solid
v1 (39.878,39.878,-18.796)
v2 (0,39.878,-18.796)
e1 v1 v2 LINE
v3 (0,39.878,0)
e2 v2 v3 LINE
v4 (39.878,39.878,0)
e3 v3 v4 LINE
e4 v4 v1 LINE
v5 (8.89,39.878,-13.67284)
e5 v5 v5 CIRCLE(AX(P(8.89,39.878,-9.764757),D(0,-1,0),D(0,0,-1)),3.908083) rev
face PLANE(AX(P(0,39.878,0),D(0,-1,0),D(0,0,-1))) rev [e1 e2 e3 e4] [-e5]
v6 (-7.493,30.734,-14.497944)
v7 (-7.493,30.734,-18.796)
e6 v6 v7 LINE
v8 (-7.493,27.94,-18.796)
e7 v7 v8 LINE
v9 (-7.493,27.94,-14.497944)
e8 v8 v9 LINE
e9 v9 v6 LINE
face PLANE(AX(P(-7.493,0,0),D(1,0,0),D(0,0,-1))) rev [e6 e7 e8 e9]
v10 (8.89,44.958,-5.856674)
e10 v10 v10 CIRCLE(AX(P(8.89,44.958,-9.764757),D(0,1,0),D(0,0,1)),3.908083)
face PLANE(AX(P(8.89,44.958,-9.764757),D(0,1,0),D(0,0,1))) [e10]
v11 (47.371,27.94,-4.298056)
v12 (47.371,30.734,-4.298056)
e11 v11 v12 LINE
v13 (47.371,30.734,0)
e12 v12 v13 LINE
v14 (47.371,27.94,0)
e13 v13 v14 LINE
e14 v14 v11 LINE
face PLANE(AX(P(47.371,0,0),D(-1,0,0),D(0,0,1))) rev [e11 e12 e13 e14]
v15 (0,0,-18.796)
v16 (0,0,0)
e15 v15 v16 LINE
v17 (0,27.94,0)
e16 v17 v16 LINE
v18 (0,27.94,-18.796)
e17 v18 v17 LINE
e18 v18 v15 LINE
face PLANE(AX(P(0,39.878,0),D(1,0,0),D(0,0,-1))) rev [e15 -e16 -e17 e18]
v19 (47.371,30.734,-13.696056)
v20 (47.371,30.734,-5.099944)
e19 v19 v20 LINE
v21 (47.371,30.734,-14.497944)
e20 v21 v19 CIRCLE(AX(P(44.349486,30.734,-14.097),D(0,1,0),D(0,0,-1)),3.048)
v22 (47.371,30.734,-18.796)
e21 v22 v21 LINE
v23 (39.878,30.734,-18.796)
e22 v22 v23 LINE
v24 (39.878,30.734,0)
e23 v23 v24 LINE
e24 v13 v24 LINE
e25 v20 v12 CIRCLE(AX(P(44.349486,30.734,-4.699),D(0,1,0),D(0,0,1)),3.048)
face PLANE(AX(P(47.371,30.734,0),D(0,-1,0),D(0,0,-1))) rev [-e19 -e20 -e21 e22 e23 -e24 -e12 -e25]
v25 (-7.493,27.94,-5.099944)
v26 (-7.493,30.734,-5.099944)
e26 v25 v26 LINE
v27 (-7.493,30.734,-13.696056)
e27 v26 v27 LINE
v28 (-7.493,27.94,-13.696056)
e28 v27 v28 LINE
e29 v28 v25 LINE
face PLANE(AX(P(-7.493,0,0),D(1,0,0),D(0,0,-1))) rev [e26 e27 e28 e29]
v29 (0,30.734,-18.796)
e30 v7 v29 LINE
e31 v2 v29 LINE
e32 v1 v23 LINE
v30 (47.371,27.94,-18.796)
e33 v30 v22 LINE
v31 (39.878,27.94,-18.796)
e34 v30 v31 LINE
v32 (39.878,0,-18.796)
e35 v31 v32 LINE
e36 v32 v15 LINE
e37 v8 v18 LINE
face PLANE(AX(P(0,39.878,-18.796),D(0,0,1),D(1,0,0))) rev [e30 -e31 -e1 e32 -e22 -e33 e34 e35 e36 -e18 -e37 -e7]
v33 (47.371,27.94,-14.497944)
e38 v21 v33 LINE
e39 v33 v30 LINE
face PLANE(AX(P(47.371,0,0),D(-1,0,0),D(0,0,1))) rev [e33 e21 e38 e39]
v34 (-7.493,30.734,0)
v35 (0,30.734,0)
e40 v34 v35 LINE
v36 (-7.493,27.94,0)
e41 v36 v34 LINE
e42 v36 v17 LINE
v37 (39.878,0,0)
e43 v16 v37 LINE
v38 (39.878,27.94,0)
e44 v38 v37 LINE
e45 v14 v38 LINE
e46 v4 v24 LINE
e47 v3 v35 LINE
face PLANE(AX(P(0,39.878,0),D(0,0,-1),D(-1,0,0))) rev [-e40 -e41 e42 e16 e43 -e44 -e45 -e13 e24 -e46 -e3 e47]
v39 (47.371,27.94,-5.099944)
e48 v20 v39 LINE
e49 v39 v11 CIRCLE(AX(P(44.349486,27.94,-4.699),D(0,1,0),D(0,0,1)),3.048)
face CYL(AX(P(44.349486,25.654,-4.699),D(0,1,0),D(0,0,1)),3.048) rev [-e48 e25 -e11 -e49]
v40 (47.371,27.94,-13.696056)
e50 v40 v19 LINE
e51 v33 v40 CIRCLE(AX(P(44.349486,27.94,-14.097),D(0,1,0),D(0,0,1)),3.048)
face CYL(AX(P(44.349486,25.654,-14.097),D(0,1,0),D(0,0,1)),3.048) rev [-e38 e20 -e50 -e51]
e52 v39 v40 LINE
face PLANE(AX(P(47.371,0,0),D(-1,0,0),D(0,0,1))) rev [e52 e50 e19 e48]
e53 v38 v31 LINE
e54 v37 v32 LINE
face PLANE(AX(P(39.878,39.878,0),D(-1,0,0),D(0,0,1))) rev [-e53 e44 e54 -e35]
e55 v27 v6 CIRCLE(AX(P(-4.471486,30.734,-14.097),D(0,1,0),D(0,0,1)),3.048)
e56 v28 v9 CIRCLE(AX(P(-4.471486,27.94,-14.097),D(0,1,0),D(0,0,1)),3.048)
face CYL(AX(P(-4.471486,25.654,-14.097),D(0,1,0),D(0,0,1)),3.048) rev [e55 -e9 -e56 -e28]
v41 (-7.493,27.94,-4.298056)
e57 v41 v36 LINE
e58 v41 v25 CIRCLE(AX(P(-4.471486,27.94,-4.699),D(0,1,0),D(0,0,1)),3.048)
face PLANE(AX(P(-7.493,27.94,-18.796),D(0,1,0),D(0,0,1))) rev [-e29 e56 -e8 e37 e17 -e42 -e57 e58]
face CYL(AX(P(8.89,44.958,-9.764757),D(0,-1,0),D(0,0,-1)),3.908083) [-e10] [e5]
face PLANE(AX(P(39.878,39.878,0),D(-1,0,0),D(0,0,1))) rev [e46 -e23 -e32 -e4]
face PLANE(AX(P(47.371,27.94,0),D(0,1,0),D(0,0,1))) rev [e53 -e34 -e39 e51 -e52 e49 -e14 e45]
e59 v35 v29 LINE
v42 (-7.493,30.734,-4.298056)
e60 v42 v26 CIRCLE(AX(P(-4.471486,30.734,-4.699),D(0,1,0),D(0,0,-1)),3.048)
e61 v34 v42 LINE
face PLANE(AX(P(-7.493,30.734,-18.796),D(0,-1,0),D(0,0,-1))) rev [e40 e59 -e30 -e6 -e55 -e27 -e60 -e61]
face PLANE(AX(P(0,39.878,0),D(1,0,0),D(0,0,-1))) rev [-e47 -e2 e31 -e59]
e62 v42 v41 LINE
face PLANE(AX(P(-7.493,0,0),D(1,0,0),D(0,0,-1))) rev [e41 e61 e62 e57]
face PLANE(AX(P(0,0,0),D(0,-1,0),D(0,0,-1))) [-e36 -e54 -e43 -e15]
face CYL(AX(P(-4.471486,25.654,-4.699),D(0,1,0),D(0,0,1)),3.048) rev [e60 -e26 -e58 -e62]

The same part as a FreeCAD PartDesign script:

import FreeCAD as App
import Part
import Sketcher

V = App.Vector
Q = App.Units.Quantity


def add_polygon(sketch, points):
    """Adds a closed chain of lines whose ends are joined by coincident constraints."""
    first, n = sketch.GeometryCount, len(points)
    for a, b in zip(points, points[1:] + points[:1]):
        sketch.addGeometry(Part.LineSegment(App.Vector(*a, 0), App.Vector(*b, 0)), False)
    for i in range(n):
        sketch.addConstraint(Sketcher.Constraint("Coincident", first + i, 2, first + (i + 1) % n, 1))

doc = App.newDocument("Part")
params = doc.addObject("Spreadsheet::Sheet", "Params")
for row, (alias, value) in enumerate([
    ("sketch1_width", "1.57 in"),
    ("sketch1_height", "0.74 in"),
    ("pad1_length", "1.57 in"),
    ("sketch2_width", "0.11 in"),
    ("sketch2_height", "0.74 in"),
    ("pad2_length", "0.295 in"),
    ("sketch3_width", "0.11 in"),
    ("sketch3_height", "0.74 in"),
    ("pad3_length", "0.295 in"),
    ("pad4_length", "0.2 in"),
    ("sketch5_diameter", "0.24 in"),
    ("pocket1_length", "0.2 in"),
], start=1):
    params.set(f"A{row}", alias)
    params.set(f"B{row}", "=" + value)
    params.setAlias(f"B{row}", alias)

body = doc.addObject("PartDesign::Body", "Body")

# Sketch on XZ plane
sketch1 = doc.addObject("Sketcher::SketchObject", "Sketch")
body.addObject(sketch1)
sketch1.AttachmentSupport = (doc.XZ_Plane, [""])
sketch1.MapMode = "FlatFace"
add_polygon(sketch1, [(0, -18.796), (0, 0), (39.878, 0), (39.878, -18.796)])  # lines 0-3
sketch1.addConstraint([
    Sketcher.Constraint("Vertical", 0),
    Sketcher.Constraint("Horizontal", 1),
    Sketcher.Constraint("Vertical", 2),
    Sketcher.Constraint("Horizontal", 3),
    Sketcher.Constraint("Coincident", 0, 2, -1, 1),
    Sketcher.Constraint("DistanceX", 1, 1, 1, 2, Q("1.57 in")),
    Sketcher.Constraint("DistanceY", 0, 1, 0, 2, Q("0.74 in")),
])
sketch1.setExpression("Constraints[9]", "Params.sketch1_width")
sketch1.setExpression("Constraints[10]", "Params.sketch1_height")
pad1 = doc.addObject("PartDesign::Pad", "Pad")
body.addObject(pad1)
pad1.Profile = sketch1
pad1.setExpression("Length", "Params.pad1_length")
pad1.Reversed = True

# Sketch on YZ plane
sketch2 = doc.addObject("Sketcher::SketchObject", "Sketch001")
body.addObject(sketch2)
sketch2.AttachmentSupport = (doc.YZ_Plane, [""])
sketch2.MapMode = "FlatFace"
add_polygon(sketch2, [(30.734, -18.796), (27.94, -18.796), (27.94, 0), (30.734, 0)])  # lines 0-3
sketch2.addConstraint([
    Sketcher.Constraint("Horizontal", 0),
    Sketcher.Constraint("Vertical", 1),
    Sketcher.Constraint("Horizontal", 2),
    Sketcher.Constraint("Vertical", 3),
    Sketcher.Constraint("PointOnObject", 1, 2, -1),
    Sketcher.Constraint("DistanceX", 0, 2, 0, 1, Q("0.11 in")),
    Sketcher.Constraint("DistanceY", 1, 1, 1, 2, Q("0.74 in")),
    Sketcher.Constraint("DistanceX", -1, 1, 0, 2, Q("1.1 in")),
])
sketch2.setExpression("Constraints[9]", "Params.sketch2_width")
sketch2.setExpression("Constraints[10]", "Params.sketch2_height")
pad2 = doc.addObject("PartDesign::Pad", "Pad001")
body.addObject(pad2)
pad2.Profile = sketch2
pad2.setExpression("Length", "Params.pad2_length")
pad2.Reversed = True

# Sketch on YZ plane
sketch3 = doc.addObject("Sketcher::SketchObject", "Sketch002")
body.addObject(sketch3)
sketch3.AttachmentSupport = (doc.YZ_Plane, [""])
sketch3.MapMode = "FlatFace"
sketch3.AttachmentOffset = App.Placement(V(0, 0, 1.57 * 25.4), App.Rotation())
add_polygon(sketch3, [(30.734, 0), (27.94, 0), (27.94, -18.796), (30.734, -18.796)])  # lines 0-3
sketch3.addConstraint([
    Sketcher.Constraint("Horizontal", 0),
    Sketcher.Constraint("Vertical", 1),
    Sketcher.Constraint("Horizontal", 2),
    Sketcher.Constraint("Vertical", 3),
    Sketcher.Constraint("PointOnObject", 0, 2, -1),
    Sketcher.Constraint("DistanceX", 0, 2, 0, 1, Q("0.11 in")),
    Sketcher.Constraint("DistanceY", 1, 2, 1, 1, Q("0.74 in")),
    Sketcher.Constraint("DistanceX", -1, 1, 0, 2, Q("1.1 in")),
])
sketch3.setExpression("Constraints[9]", "Params.sketch3_width")
sketch3.setExpression("Constraints[10]", "Params.sketch3_height")
pad3 = doc.addObject("PartDesign::Pad", "Pad002")
body.addObject(pad3)
pad3.Profile = sketch3
pad3.setExpression("Length", "Params.pad3_length")

# Sketch on XZ plane
sketch4 = doc.addObject("Sketcher::SketchObject", "Sketch003")
body.addObject(sketch4)
sketch4.AttachmentSupport = (doc.XZ_Plane, [""])
sketch4.MapMode = "FlatFace"
sketch4.AttachmentOffset = App.Placement(V(0, 0, -1.57 * 25.4), App.Rotation())
sketch4.addGeometry(Part.Circle(V(8.89, -9.764757, 0), V(0, 0, 1), 3.908083), False)
sketch4.addConstraint([
    Sketcher.Constraint("DistanceX", -1, 1, 0, 3, Q("0.35 in")),
    Sketcher.Constraint("Diameter", 0, 7.816166),
    Sketcher.Constraint("DistanceY", 0, 3, -1, 1, 9.764757),
])
pad4 = doc.addObject("PartDesign::Pad", "Pad003")
body.addObject(pad4)
pad4.Profile = sketch4
pad4.setExpression("Length", "Params.pad4_length")
pad4.Reversed = True

# Sketch on XZ plane
sketch5 = doc.addObject("Sketcher::SketchObject", "Sketch004")
body.addObject(sketch5)
sketch5.AttachmentSupport = (doc.XZ_Plane, [""])
sketch5.MapMode = "FlatFace"
sketch5.AttachmentOffset = App.Placement(V(0, 0, -1.21 * 25.4), App.Rotation())
sketch5.addGeometry([
    Part.Circle(V(-4.471486, -14.097, 0), V(0, 0, 1), 3.048),
    Part.Circle(V(-4.471486, -4.699, 0), V(0, 0, 1), 3.048),
    Part.Circle(V(44.349486, -4.699, 0), V(0, 0, 1), 3.048),
    Part.Circle(V(44.349486, -14.097, 0), V(0, 0, 1), 3.048),
], False)
sketch5.addConstraint([
    Sketcher.Constraint("Equal", 0, 1),
    Sketcher.Constraint("Equal", 1, 2),
    Sketcher.Constraint("Equal", 2, 3),
    Sketcher.Constraint("Horizontal", 1, 3, 2, 3),
    Sketcher.Constraint("Horizontal", 0, 3, 3, 3),
    Sketcher.Constraint("Vertical", 0, 3, 1, 3),
    Sketcher.Constraint("Vertical", 2, 3, 3, 3),
    Sketcher.Constraint("Diameter", 0, Q("0.24 in")),
    Sketcher.Constraint("DistanceY", 0, 3, 1, 3, Q("0.37 in")),
    Sketcher.Constraint("DistanceY", 0, 3, -1, 1, Q("0.555 in")),
    Sketcher.Constraint("DistanceX", 1, 3, 2, 3, 48.820972),
    Sketcher.Constraint("DistanceX", 0, 3, -1, 1, 4.471486),
])
sketch5.setExpression("Constraints[7]", "Params.sketch5_diameter")
pocket1 = doc.addObject("PartDesign::Pocket", "Pocket")
body.addObject(pocket1)
pocket1.Profile = sketch5
pocket1.setExpression("Length", "Params.pocket1_length")
pocket1.Reversed = True

doc.recompute()
